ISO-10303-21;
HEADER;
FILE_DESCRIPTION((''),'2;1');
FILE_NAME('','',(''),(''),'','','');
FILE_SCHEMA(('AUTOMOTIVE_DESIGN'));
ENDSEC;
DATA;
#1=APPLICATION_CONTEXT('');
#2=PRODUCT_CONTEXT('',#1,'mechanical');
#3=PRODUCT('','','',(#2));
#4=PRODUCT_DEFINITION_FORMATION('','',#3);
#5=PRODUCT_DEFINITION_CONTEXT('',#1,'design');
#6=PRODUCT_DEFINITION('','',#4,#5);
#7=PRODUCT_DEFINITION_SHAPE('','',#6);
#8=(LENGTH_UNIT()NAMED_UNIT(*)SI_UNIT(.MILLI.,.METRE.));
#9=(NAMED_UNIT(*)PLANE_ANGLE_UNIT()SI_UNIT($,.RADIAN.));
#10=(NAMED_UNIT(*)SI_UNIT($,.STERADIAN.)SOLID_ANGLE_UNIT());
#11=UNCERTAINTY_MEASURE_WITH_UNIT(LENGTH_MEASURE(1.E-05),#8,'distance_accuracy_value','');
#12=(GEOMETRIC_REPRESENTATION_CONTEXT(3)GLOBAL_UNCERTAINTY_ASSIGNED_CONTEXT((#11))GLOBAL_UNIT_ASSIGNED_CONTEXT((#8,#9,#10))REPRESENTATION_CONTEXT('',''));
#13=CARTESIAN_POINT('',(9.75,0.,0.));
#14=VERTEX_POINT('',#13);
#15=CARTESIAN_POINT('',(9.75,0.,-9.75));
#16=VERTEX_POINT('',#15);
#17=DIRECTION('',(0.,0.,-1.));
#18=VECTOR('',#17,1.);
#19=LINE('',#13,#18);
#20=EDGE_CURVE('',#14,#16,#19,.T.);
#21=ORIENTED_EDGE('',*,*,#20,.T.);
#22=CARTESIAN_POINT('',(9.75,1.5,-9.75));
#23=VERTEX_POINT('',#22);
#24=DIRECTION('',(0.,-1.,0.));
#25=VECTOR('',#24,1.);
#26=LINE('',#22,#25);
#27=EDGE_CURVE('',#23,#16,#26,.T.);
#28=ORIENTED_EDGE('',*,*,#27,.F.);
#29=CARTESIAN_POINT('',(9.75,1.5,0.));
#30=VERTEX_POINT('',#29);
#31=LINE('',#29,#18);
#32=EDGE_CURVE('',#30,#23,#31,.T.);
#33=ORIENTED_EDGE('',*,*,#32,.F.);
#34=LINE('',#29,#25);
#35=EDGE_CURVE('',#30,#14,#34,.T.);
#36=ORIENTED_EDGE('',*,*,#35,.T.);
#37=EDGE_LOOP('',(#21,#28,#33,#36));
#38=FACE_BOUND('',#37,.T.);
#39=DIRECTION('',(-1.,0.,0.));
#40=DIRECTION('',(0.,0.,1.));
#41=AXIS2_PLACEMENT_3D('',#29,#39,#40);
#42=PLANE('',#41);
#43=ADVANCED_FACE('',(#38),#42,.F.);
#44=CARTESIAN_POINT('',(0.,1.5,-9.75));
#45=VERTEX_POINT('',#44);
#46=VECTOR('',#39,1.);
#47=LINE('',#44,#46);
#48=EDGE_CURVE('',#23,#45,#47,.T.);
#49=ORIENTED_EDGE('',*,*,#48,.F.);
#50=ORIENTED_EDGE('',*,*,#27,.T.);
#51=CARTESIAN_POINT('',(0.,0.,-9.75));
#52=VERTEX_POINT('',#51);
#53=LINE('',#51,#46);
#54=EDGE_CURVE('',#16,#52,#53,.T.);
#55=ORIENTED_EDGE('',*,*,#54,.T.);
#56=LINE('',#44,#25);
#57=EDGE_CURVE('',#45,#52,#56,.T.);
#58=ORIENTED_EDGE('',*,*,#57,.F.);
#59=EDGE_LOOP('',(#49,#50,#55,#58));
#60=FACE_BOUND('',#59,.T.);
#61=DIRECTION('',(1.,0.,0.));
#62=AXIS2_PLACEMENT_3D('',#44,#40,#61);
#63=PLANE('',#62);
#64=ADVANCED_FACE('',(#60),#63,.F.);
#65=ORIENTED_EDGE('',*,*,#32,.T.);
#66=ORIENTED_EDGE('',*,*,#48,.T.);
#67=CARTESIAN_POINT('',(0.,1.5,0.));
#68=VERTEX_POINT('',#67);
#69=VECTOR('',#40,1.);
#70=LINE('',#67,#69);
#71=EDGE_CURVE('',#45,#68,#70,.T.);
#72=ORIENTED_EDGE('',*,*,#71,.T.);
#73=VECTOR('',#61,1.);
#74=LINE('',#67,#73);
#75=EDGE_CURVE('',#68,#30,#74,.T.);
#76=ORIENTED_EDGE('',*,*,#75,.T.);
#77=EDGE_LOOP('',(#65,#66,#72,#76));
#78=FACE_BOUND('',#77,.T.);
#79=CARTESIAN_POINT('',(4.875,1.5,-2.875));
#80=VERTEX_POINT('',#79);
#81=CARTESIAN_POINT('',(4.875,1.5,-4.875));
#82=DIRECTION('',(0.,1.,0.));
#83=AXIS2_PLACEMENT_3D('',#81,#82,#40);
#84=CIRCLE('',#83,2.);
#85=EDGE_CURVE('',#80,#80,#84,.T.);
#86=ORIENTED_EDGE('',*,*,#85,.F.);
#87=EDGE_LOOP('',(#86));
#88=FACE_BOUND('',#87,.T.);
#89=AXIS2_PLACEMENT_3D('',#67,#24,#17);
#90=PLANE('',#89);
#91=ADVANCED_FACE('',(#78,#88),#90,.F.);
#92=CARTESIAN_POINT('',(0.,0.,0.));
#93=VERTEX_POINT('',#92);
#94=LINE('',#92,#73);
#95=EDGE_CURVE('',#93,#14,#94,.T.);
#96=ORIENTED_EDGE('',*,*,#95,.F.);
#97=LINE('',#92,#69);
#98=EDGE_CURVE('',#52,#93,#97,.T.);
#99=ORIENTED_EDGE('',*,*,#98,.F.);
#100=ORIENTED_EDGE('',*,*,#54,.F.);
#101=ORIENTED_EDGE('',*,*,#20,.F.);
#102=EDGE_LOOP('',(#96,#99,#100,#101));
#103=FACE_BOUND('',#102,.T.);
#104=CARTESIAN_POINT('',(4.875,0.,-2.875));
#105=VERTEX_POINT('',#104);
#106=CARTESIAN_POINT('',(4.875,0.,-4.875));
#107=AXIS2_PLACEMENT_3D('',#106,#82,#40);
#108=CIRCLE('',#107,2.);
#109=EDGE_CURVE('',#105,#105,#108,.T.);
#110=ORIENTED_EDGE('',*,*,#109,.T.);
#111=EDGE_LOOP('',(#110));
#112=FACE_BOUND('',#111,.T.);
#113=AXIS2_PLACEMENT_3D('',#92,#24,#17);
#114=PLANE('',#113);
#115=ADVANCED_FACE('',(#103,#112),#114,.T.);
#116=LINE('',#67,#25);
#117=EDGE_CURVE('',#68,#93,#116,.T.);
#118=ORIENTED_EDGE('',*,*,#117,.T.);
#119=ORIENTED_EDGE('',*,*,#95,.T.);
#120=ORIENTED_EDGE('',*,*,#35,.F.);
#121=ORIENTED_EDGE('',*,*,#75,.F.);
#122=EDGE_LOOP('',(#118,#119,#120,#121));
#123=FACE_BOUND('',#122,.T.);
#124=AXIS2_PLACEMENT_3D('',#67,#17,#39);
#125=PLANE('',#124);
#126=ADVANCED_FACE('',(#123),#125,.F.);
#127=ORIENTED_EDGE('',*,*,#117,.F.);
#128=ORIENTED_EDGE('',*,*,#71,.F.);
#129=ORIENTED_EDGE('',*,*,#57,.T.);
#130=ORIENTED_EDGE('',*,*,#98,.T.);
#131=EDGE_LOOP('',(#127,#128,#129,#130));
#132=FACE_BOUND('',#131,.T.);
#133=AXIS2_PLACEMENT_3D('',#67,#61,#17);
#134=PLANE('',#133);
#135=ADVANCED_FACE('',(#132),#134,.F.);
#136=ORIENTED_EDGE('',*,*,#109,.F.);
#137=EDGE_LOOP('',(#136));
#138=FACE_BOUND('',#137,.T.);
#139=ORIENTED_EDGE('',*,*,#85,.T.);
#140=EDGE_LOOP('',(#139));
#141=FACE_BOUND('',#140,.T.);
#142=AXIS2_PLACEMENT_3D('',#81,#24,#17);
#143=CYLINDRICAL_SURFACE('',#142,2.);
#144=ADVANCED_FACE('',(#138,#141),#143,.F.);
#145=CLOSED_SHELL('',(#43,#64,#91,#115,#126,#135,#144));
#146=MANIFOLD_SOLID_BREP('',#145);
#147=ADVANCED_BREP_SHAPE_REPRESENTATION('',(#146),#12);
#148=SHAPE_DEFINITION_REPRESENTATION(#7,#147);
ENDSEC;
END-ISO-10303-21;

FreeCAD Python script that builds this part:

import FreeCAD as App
import Part
import Sketcher
Q = App.Units.Quantity

doc = App.newDocument("Part")
params = doc.addObject("Spreadsheet::Sheet", "Params")
for row, (alias, value) in enumerate([
    ("sketch1_diameter", "4 mm"),
    ("sketch1_width", "9.75 mm"),
    ("pad1_length", "1.5 mm"),
], start=1):
    params.set(f"A{row}", alias)
    params.set(f"B{row}", "=" + value)
    params.setAlias(f"B{row}", alias)

body = doc.addObject("PartDesign::Body", "Body")

# Sketch on XZ plane
sketch1 = body.newObject("Sketcher::SketchObject", "Sketch")
sketch1.AttachmentSupport = (doc.getObject("XZ_Plane"), [""])
sketch1.MapMode = "FlatFace"
sketch1.addGeometry(Part.LineSegment(App.Vector(0, -9.8, 0), App.Vector(0, 0, 0)), False)
sketch1.addGeometry(Part.LineSegment(App.Vector(0, 0, 0), App.Vector(9.8, 0, 0)), False)
sketch1.addGeometry(Part.LineSegment(App.Vector(9.8, 0, 0), App.Vector(9.8, -9.8, 0)), False)
sketch1.addGeometry(Part.LineSegment(App.Vector(9.8, -9.8, 0), App.Vector(0, -9.8, 0)), False)
sketch1.addGeometry(Part.Circle(App.Vector(4.9, -4.9, 0), App.Vector(0, 0, 1), 2), False)
sketch1.addConstraint(Sketcher.Constraint("Coincident", 0, 2, 1, 1))
sketch1.addConstraint(Sketcher.Constraint("Coincident", 1, 2, 2, 1))
sketch1.addConstraint(Sketcher.Constraint("Coincident", 2, 2, 3, 1))
sketch1.addConstraint(Sketcher.Constraint("Coincident", 3, 2, 0, 1))
sketch1.addConstraint(Sketcher.Constraint("Vertical", 0))
sketch1.addConstraint(Sketcher.Constraint("Horizontal", 1))
sketch1.addConstraint(Sketcher.Constraint("Vertical", 2))
sketch1.addConstraint(Sketcher.Constraint("Horizontal", 3))
sketch1.addConstraint(Sketcher.Constraint("Coincident", 0, 2, -1, 1))
sketch1.addConstraint(Sketcher.Constraint("Equal", 3, 0))
sketch1.addConstraint(Sketcher.Constraint("Diameter", 4, Q("4 mm")))
sketch1.addConstraint(Sketcher.Constraint("DistanceX", 1, 1, 1, 2, Q("9.75 mm")))
sketch1.addConstraint(Sketcher.Constraint("DistanceX", -1, 1, 4, 3, Q("4.875 mm")))
sketch1.addConstraint(Sketcher.Constraint("DistanceY", 4, 3, -1, 1, Q("4.875 mm")))
sketch1.setExpression("Constraints[10]", "Params.sketch1_diameter")
sketch1.setExpression("Constraints[11]", "Params.sketch1_width")
pad1 = body.newObject("PartDesign::Pad", "Pad")
pad1.Profile = sketch1
pad1.setExpression("Length", "Params.pad1_length")
pad1.Reversed = True

doc.recompute()
